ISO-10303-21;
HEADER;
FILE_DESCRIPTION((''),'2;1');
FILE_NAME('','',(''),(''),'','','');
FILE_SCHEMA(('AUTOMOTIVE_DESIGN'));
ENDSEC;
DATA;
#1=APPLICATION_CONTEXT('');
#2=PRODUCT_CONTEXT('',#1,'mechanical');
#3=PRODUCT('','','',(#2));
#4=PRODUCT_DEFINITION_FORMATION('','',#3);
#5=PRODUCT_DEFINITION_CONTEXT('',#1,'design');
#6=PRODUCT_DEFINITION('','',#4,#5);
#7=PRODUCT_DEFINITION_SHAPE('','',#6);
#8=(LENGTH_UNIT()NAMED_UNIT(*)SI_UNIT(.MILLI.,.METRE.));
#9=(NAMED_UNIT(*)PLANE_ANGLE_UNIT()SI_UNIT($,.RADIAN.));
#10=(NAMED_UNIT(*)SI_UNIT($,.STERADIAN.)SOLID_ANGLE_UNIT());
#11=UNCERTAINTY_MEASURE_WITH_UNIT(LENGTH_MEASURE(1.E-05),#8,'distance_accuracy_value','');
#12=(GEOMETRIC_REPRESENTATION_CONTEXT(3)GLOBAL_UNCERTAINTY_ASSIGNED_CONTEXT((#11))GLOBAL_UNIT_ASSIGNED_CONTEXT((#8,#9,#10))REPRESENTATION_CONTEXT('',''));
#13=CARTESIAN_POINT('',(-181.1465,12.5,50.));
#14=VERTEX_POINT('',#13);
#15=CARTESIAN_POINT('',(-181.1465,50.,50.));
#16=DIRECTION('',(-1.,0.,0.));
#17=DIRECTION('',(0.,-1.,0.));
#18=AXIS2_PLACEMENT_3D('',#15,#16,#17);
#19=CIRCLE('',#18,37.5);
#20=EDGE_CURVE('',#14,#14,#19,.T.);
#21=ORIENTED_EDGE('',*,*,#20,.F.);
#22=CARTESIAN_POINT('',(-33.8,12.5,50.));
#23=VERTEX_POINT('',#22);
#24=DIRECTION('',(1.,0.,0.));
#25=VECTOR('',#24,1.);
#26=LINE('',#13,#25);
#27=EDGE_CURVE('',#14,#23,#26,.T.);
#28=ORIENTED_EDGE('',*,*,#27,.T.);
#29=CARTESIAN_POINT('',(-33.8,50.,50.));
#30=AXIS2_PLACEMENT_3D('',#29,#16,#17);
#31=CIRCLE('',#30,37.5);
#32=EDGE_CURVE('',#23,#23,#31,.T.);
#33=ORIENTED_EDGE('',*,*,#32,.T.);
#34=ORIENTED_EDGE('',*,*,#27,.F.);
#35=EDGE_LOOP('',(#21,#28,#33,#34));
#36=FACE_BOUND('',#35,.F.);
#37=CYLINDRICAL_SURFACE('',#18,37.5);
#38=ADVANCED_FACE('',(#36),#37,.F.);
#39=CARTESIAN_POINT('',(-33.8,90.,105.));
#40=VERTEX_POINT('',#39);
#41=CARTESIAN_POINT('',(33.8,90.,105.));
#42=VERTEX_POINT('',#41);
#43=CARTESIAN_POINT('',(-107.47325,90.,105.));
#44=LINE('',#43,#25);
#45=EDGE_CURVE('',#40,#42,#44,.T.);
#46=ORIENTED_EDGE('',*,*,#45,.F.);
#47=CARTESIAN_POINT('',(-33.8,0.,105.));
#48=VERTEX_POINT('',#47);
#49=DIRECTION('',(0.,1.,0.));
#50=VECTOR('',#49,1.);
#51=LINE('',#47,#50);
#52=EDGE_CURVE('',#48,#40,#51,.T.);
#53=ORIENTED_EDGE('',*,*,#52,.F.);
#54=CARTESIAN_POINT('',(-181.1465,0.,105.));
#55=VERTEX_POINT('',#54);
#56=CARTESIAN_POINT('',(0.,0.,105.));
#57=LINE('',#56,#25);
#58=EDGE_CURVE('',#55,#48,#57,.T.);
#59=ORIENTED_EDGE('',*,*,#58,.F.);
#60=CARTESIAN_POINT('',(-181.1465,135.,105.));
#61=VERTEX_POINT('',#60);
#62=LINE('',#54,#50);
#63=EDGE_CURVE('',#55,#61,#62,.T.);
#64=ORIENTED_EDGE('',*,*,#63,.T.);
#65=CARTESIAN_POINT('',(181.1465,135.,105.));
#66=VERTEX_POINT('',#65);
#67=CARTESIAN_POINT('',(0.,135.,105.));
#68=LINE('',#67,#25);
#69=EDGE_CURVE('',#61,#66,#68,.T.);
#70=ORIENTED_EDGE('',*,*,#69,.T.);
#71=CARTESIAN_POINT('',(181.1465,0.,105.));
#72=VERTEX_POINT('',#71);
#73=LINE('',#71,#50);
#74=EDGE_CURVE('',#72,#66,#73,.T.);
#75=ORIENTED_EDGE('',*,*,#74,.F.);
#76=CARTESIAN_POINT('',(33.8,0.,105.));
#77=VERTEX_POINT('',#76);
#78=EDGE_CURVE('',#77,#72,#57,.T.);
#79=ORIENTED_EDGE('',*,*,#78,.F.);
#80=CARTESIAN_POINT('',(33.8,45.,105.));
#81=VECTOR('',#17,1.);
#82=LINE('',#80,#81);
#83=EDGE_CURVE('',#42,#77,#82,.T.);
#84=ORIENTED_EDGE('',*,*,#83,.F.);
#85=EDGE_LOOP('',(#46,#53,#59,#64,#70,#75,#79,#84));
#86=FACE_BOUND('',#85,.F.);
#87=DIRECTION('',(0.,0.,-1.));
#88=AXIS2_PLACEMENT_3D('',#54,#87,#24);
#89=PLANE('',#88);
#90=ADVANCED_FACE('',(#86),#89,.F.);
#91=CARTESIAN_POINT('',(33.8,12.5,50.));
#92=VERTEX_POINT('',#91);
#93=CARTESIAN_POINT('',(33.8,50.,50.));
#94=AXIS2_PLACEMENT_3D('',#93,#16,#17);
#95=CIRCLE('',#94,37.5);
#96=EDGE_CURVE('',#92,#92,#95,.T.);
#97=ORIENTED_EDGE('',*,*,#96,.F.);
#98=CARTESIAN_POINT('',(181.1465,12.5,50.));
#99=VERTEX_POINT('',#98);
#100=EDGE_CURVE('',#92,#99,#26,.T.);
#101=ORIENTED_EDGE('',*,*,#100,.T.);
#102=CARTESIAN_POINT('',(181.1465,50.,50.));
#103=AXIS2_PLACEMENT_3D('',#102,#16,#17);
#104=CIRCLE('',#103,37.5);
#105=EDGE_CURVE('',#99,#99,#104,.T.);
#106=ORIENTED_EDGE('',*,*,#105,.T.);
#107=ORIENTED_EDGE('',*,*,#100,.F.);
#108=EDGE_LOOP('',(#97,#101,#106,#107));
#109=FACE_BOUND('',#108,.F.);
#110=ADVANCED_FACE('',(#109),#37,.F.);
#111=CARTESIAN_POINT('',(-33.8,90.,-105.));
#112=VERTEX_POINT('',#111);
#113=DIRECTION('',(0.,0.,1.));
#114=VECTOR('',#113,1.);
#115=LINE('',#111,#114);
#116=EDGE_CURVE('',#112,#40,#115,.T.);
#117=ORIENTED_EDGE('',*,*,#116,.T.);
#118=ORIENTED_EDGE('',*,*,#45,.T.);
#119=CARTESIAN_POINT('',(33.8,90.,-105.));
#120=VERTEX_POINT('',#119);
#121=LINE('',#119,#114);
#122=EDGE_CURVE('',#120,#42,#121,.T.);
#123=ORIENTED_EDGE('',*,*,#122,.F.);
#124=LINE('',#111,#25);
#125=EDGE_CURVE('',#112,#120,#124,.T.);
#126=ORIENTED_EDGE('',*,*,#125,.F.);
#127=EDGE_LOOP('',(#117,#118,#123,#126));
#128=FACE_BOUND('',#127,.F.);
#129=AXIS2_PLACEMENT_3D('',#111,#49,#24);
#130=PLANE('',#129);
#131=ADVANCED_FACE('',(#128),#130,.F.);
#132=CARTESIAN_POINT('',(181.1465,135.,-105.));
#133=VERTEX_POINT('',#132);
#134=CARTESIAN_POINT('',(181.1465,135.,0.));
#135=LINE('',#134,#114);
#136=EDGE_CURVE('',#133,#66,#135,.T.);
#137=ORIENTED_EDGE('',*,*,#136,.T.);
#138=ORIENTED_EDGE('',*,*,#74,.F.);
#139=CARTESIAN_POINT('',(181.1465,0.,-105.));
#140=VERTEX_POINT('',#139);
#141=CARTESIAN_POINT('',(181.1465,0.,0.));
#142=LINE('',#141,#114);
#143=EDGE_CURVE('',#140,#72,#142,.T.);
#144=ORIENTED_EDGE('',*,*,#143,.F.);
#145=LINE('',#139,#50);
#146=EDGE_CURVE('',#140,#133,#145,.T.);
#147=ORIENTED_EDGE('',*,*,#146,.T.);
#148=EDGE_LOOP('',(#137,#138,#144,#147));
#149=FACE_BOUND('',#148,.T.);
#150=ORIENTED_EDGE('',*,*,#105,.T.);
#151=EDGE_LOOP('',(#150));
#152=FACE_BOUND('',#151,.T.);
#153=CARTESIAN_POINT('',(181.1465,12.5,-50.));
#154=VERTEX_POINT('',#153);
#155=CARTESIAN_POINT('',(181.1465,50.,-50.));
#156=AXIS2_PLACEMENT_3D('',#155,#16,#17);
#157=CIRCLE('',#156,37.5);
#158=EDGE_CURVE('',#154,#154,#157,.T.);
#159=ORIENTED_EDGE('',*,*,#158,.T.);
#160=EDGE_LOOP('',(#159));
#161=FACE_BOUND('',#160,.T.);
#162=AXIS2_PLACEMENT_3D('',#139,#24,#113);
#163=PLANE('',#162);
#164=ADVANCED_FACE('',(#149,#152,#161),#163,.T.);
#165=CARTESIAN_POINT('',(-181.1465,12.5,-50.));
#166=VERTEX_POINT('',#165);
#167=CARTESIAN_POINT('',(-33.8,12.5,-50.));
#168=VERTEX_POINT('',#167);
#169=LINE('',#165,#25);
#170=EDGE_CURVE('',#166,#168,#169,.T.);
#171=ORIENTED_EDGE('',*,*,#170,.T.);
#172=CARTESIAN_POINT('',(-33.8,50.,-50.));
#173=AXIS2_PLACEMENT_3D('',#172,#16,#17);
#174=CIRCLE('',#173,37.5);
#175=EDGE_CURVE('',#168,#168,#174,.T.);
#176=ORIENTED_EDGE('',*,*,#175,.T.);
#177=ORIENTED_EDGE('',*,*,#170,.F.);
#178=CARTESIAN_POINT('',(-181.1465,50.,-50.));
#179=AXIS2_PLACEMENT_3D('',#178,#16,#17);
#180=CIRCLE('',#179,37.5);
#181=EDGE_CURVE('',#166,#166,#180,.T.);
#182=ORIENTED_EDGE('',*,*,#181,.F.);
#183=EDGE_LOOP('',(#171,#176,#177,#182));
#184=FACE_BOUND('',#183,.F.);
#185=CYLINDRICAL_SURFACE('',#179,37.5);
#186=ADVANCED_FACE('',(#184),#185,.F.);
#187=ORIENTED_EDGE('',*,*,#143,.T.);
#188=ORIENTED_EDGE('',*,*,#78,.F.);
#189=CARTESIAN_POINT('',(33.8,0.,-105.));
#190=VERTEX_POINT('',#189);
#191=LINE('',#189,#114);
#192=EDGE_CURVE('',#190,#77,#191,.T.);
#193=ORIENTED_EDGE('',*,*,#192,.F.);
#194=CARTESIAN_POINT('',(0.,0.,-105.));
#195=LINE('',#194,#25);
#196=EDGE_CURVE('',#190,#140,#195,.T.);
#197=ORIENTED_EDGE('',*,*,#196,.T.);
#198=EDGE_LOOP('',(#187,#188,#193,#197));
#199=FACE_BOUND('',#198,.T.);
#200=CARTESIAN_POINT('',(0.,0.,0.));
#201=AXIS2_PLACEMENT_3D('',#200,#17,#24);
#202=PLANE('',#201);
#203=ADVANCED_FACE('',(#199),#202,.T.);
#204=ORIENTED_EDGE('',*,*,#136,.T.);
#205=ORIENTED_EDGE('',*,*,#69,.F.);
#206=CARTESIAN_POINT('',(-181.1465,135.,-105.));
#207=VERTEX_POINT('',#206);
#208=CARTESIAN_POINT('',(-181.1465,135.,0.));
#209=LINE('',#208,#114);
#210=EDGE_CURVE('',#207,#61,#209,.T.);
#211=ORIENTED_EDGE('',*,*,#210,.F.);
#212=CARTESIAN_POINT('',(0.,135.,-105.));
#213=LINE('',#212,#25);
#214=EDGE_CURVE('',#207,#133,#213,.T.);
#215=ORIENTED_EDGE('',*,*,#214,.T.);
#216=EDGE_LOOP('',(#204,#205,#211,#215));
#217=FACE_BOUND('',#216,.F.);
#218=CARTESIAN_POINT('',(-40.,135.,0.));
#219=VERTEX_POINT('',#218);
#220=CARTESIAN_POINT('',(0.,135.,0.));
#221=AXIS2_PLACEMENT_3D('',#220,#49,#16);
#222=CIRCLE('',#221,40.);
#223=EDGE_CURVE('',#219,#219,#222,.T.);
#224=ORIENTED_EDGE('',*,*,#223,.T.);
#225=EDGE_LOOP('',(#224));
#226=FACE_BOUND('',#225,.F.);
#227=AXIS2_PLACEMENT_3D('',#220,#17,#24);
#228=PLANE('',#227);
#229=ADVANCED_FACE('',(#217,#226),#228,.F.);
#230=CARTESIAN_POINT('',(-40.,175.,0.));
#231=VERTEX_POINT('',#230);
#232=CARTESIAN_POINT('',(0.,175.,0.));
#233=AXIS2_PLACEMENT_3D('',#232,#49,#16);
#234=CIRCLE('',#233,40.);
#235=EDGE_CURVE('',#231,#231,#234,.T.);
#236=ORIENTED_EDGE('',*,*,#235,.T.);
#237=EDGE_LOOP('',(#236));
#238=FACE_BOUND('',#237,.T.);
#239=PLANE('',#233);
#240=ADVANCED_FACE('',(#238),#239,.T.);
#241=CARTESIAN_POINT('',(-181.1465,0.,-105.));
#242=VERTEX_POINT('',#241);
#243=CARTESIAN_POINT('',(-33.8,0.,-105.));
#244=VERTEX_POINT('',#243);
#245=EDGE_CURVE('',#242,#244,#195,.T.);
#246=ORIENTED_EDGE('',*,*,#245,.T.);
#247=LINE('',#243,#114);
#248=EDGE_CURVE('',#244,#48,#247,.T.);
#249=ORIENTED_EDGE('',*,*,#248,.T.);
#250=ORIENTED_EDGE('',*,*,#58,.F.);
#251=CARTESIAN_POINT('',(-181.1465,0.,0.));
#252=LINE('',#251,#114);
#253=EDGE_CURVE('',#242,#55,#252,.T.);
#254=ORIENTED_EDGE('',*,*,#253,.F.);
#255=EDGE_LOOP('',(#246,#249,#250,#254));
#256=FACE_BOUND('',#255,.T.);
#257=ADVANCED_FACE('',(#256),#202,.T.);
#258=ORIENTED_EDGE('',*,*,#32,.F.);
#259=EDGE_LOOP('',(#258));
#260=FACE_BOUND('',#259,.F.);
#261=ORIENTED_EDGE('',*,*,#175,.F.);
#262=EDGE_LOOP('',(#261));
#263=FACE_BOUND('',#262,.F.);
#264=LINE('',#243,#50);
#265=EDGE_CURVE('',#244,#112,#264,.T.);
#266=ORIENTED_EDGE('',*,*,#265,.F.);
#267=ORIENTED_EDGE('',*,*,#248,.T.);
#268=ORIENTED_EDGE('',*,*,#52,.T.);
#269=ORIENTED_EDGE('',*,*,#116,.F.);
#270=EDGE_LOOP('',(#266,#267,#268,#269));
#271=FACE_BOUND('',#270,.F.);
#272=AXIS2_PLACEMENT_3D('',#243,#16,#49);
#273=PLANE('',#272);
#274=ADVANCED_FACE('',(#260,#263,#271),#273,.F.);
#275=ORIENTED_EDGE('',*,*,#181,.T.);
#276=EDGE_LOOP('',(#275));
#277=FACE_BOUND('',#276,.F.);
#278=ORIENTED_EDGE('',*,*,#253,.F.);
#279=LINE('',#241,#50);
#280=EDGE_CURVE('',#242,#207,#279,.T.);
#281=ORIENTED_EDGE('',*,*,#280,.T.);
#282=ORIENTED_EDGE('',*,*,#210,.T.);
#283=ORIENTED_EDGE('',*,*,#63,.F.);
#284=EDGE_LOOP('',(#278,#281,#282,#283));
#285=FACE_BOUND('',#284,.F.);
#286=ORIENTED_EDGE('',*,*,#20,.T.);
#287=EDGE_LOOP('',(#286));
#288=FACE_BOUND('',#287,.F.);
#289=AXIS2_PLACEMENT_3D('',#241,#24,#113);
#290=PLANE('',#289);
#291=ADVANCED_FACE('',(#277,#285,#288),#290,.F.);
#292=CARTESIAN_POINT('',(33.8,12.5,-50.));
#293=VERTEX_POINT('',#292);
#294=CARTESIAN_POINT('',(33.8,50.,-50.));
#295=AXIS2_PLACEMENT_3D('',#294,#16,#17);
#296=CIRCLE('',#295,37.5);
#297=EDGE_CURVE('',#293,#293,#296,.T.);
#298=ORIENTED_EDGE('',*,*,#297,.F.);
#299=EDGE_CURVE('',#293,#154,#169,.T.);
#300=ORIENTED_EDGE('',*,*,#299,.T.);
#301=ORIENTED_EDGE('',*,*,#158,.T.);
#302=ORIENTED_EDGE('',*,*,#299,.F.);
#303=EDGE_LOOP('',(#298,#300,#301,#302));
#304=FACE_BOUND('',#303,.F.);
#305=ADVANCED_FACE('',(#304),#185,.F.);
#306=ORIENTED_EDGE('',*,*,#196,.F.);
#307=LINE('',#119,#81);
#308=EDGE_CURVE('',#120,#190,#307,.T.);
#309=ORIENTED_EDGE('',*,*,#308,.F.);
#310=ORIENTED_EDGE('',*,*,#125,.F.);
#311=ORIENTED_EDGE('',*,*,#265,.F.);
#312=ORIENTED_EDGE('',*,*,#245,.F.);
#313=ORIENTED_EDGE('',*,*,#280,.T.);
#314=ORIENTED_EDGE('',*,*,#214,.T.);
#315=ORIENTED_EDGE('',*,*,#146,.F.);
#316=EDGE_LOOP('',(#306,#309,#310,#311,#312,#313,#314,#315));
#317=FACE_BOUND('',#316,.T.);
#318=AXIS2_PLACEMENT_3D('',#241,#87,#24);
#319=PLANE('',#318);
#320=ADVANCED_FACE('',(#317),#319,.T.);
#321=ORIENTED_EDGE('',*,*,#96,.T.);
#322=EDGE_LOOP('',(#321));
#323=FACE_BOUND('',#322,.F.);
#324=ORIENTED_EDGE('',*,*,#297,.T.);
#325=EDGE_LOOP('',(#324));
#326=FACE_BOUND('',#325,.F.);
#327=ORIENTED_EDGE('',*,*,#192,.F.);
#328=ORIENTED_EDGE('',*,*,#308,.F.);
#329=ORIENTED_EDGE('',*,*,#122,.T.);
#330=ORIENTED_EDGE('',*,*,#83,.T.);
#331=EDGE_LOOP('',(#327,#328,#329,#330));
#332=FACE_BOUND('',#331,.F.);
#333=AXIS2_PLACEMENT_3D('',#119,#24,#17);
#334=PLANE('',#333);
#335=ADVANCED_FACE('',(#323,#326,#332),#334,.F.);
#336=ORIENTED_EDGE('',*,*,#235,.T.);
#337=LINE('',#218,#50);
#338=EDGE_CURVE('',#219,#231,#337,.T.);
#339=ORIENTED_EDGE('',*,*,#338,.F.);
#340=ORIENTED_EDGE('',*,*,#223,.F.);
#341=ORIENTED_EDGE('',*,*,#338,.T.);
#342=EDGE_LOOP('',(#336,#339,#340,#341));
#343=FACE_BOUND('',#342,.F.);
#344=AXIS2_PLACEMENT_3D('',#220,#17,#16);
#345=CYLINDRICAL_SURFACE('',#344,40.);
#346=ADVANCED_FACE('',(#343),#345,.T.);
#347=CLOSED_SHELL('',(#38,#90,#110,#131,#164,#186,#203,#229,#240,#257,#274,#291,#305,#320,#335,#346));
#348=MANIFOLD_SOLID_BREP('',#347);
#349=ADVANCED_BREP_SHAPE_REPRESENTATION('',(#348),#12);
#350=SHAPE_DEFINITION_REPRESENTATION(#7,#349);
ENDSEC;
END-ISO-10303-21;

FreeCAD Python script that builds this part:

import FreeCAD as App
import Part
import Sketcher
from FreeCAD import Vector

doc = App.newDocument("Part")
params = doc.addObject("Spreadsheet::Sheet", "Params")
for row, (alias, value) in enumerate([
    ("sketch1_height", "210 mm"),
    ("pad1_length", "135 mm"),
    ("sketch2_diameter", "80 mm"),
    ("pad2_length", "40 mm"),
    ("sketch3_height", "90 mm"),
    ("sketch3_width", "67.6 mm"),
    ("sketch4_diameter", "75 mm"),
], start=1):
    params.set(f"A{row}", alias)
    params.set(f"B{row}", "=" + value)
    params.setAlias(f"B{row}", alias)

body = doc.addObject("PartDesign::Body", "Body")

sketch1 = doc.addObject("Sketcher::SketchObject", "Sketch")
body.addObject(sketch1)
sketch1.AttachmentSupport = (doc.XZ_Plane, [""])
sketch1.MapMode = "FlatFace"
sketch1.addGeometry([
    Part.LineSegment(Vector(-181.1465, 105, 0), Vector(-181.1465, -105, 0)),
    Part.LineSegment(Vector(-181.1465, -105, 0), Vector(181.1465, -105, 0)),
    Part.LineSegment(Vector(181.1465, -105, 0), Vector(181.1465, 105, 0)),
    Part.LineSegment(Vector(181.1465, 105, 0), Vector(-181.1465, 105, 0)),
], False)
sketch1.addConstraint([
    Sketcher.Constraint("Coincident", 0, 2, 1, 1),
    Sketcher.Constraint("Coincident", 1, 2, 2, 1),
    Sketcher.Constraint("Coincident", 2, 2, 3, 1),
    Sketcher.Constraint("Coincident", 3, 2, 0, 1),
    Sketcher.Constraint("Vertical", 0),
    Sketcher.Constraint("Horizontal", 1),
    Sketcher.Constraint("Vertical", 2),
    Sketcher.Constraint("Horizontal", 3),
    Sketcher.Constraint("Symmetric", 0, 2, 2, 2, -1, 1),
    Sketcher.Constraint("DistanceY", 0, 2, 0, 1, 210.0),
    Sketcher.Constraint("DistanceX", 1, 1, 1, 2, 362.293),
])
sketch1.setExpression("Constraints[9]", "Params.sketch1_height")
pad1 = doc.addObject("PartDesign::Pad", "Pad")
body.addObject(pad1)
pad1.Profile = sketch1
pad1.setExpression("Length", "Params.pad1_length")
pad1.Reversed = True

sketch2 = doc.addObject("Sketcher::SketchObject", "Sketch001")
body.addObject(sketch2)
sketch2.AttachmentSupport = (doc.XZ_Plane, [""])
sketch2.MapMode = "FlatFace"
sketch2.AttachmentOffset = App.Placement(Vector(0, 0, -135), App.Rotation())
sketch2.addGeometry(Part.Circle(Vector(0, 0, 0), Vector(0, 0, 1), 40), False)
sketch2.addConstraint([
    Sketcher.Constraint("Coincident", 0, 3, -1, 1),
    Sketcher.Constraint("Diameter", 0, 80.0),
])
sketch2.setExpression("Constraints[1]", "Params.sketch2_diameter")
pad2 = doc.addObject("PartDesign::Pad", "Pad001")
body.addObject(pad2)
pad2.Profile = sketch2
pad2.setExpression("Length", "Params.pad2_length")
pad2.Reversed = True

sketch3 = doc.addObject("Sketcher::SketchObject", "Sketch002")
body.addObject(sketch3)
sketch3.AttachmentSupport = (doc.XY_Plane, [""])
sketch3.MapMode = "FlatFace"
sketch3.AttachmentOffset = App.Placement(Vector(0, 0, -105), App.Rotation())
sketch3.addGeometry([
    Part.LineSegment(Vector(-33.8, 0, 0), Vector(-33.8, 90, 0)),
    Part.LineSegment(Vector(-33.8, 90, 0), Vector(33.8, 90, 0)),
    Part.LineSegment(Vector(33.8, 90, 0), Vector(33.8, 0, 0)),
    Part.LineSegment(Vector(33.8, 0, 0), Vector(-33.8, 0, 0)),
], False)
sketch3.addConstraint([
    Sketcher.Constraint("Coincident", 0, 2, 1, 1),
    Sketcher.Constraint("Coincident", 1, 2, 2, 1),
    Sketcher.Constraint("Coincident", 2, 2, 3, 1),
    Sketcher.Constraint("Coincident", 3, 2, 0, 1),
    Sketcher.Constraint("Vertical", 0),
    Sketcher.Constraint("Horizontal", 1),
    Sketcher.Constraint("Vertical", 2),
    Sketcher.Constraint("Horizontal", 3),
    Sketcher.Constraint("Symmetric", 2, 2, 3, 2, -1, 1),
    Sketcher.Constraint("DistanceY", 0, 1, 0, 2, 90.0),
    Sketcher.Constraint("DistanceX", 1, 1, 1, 2, 67.6),
])
sketch3.setExpression("Constraints[9]", "Params.sketch3_height")
sketch3.setExpression("Constraints[10]", "Params.sketch3_width")
pocket1 = doc.addObject("PartDesign::Pocket", "Pocket")
body.addObject(pocket1)
pocket1.Profile = sketch3
pocket1.Type = "ThroughAll"
pocket1.Reversed = True

sketch4 = doc.addObject("Sketcher::SketchObject", "Sketch003")
body.addObject(sketch4)
sketch4.AttachmentSupport = (doc.YZ_Plane, [""])
sketch4.MapMode = "FlatFace"
sketch4.AttachmentOffset = App.Placement(Vector(0, 0, -181.1465), App.Rotation())
sketch4.addGeometry([
    Part.Circle(Vector(50, 50, 0), Vector(0, 0, 1), 37.5),
    Part.Circle(Vector(50, -50, 0), Vector(0, 0, 1), 37.5),
], False)
sketch4.addConstraint([
    Sketcher.Constraint("Equal", 0, 1),
    Sketcher.Constraint("Symmetric", 0, 3, 1, 3, -1),
    Sketcher.Constraint("Diameter", 0, 75.0),
    Sketcher.Constraint("DistanceX", -1, 1, 0, 3, 50.0),
    Sketcher.Constraint("DistanceY", -1, 1, 0, 3, 50.0),
])
sketch4.setExpression("Constraints[2]", "Params.sketch4_diameter")
pocket2 = doc.addObject("PartDesign::Pocket", "Pocket001")
body.addObject(pocket2)
pocket2.Profile = sketch4
pocket2.Type = "ThroughAll"
pocket2.Reversed = True

doc.recompute()
